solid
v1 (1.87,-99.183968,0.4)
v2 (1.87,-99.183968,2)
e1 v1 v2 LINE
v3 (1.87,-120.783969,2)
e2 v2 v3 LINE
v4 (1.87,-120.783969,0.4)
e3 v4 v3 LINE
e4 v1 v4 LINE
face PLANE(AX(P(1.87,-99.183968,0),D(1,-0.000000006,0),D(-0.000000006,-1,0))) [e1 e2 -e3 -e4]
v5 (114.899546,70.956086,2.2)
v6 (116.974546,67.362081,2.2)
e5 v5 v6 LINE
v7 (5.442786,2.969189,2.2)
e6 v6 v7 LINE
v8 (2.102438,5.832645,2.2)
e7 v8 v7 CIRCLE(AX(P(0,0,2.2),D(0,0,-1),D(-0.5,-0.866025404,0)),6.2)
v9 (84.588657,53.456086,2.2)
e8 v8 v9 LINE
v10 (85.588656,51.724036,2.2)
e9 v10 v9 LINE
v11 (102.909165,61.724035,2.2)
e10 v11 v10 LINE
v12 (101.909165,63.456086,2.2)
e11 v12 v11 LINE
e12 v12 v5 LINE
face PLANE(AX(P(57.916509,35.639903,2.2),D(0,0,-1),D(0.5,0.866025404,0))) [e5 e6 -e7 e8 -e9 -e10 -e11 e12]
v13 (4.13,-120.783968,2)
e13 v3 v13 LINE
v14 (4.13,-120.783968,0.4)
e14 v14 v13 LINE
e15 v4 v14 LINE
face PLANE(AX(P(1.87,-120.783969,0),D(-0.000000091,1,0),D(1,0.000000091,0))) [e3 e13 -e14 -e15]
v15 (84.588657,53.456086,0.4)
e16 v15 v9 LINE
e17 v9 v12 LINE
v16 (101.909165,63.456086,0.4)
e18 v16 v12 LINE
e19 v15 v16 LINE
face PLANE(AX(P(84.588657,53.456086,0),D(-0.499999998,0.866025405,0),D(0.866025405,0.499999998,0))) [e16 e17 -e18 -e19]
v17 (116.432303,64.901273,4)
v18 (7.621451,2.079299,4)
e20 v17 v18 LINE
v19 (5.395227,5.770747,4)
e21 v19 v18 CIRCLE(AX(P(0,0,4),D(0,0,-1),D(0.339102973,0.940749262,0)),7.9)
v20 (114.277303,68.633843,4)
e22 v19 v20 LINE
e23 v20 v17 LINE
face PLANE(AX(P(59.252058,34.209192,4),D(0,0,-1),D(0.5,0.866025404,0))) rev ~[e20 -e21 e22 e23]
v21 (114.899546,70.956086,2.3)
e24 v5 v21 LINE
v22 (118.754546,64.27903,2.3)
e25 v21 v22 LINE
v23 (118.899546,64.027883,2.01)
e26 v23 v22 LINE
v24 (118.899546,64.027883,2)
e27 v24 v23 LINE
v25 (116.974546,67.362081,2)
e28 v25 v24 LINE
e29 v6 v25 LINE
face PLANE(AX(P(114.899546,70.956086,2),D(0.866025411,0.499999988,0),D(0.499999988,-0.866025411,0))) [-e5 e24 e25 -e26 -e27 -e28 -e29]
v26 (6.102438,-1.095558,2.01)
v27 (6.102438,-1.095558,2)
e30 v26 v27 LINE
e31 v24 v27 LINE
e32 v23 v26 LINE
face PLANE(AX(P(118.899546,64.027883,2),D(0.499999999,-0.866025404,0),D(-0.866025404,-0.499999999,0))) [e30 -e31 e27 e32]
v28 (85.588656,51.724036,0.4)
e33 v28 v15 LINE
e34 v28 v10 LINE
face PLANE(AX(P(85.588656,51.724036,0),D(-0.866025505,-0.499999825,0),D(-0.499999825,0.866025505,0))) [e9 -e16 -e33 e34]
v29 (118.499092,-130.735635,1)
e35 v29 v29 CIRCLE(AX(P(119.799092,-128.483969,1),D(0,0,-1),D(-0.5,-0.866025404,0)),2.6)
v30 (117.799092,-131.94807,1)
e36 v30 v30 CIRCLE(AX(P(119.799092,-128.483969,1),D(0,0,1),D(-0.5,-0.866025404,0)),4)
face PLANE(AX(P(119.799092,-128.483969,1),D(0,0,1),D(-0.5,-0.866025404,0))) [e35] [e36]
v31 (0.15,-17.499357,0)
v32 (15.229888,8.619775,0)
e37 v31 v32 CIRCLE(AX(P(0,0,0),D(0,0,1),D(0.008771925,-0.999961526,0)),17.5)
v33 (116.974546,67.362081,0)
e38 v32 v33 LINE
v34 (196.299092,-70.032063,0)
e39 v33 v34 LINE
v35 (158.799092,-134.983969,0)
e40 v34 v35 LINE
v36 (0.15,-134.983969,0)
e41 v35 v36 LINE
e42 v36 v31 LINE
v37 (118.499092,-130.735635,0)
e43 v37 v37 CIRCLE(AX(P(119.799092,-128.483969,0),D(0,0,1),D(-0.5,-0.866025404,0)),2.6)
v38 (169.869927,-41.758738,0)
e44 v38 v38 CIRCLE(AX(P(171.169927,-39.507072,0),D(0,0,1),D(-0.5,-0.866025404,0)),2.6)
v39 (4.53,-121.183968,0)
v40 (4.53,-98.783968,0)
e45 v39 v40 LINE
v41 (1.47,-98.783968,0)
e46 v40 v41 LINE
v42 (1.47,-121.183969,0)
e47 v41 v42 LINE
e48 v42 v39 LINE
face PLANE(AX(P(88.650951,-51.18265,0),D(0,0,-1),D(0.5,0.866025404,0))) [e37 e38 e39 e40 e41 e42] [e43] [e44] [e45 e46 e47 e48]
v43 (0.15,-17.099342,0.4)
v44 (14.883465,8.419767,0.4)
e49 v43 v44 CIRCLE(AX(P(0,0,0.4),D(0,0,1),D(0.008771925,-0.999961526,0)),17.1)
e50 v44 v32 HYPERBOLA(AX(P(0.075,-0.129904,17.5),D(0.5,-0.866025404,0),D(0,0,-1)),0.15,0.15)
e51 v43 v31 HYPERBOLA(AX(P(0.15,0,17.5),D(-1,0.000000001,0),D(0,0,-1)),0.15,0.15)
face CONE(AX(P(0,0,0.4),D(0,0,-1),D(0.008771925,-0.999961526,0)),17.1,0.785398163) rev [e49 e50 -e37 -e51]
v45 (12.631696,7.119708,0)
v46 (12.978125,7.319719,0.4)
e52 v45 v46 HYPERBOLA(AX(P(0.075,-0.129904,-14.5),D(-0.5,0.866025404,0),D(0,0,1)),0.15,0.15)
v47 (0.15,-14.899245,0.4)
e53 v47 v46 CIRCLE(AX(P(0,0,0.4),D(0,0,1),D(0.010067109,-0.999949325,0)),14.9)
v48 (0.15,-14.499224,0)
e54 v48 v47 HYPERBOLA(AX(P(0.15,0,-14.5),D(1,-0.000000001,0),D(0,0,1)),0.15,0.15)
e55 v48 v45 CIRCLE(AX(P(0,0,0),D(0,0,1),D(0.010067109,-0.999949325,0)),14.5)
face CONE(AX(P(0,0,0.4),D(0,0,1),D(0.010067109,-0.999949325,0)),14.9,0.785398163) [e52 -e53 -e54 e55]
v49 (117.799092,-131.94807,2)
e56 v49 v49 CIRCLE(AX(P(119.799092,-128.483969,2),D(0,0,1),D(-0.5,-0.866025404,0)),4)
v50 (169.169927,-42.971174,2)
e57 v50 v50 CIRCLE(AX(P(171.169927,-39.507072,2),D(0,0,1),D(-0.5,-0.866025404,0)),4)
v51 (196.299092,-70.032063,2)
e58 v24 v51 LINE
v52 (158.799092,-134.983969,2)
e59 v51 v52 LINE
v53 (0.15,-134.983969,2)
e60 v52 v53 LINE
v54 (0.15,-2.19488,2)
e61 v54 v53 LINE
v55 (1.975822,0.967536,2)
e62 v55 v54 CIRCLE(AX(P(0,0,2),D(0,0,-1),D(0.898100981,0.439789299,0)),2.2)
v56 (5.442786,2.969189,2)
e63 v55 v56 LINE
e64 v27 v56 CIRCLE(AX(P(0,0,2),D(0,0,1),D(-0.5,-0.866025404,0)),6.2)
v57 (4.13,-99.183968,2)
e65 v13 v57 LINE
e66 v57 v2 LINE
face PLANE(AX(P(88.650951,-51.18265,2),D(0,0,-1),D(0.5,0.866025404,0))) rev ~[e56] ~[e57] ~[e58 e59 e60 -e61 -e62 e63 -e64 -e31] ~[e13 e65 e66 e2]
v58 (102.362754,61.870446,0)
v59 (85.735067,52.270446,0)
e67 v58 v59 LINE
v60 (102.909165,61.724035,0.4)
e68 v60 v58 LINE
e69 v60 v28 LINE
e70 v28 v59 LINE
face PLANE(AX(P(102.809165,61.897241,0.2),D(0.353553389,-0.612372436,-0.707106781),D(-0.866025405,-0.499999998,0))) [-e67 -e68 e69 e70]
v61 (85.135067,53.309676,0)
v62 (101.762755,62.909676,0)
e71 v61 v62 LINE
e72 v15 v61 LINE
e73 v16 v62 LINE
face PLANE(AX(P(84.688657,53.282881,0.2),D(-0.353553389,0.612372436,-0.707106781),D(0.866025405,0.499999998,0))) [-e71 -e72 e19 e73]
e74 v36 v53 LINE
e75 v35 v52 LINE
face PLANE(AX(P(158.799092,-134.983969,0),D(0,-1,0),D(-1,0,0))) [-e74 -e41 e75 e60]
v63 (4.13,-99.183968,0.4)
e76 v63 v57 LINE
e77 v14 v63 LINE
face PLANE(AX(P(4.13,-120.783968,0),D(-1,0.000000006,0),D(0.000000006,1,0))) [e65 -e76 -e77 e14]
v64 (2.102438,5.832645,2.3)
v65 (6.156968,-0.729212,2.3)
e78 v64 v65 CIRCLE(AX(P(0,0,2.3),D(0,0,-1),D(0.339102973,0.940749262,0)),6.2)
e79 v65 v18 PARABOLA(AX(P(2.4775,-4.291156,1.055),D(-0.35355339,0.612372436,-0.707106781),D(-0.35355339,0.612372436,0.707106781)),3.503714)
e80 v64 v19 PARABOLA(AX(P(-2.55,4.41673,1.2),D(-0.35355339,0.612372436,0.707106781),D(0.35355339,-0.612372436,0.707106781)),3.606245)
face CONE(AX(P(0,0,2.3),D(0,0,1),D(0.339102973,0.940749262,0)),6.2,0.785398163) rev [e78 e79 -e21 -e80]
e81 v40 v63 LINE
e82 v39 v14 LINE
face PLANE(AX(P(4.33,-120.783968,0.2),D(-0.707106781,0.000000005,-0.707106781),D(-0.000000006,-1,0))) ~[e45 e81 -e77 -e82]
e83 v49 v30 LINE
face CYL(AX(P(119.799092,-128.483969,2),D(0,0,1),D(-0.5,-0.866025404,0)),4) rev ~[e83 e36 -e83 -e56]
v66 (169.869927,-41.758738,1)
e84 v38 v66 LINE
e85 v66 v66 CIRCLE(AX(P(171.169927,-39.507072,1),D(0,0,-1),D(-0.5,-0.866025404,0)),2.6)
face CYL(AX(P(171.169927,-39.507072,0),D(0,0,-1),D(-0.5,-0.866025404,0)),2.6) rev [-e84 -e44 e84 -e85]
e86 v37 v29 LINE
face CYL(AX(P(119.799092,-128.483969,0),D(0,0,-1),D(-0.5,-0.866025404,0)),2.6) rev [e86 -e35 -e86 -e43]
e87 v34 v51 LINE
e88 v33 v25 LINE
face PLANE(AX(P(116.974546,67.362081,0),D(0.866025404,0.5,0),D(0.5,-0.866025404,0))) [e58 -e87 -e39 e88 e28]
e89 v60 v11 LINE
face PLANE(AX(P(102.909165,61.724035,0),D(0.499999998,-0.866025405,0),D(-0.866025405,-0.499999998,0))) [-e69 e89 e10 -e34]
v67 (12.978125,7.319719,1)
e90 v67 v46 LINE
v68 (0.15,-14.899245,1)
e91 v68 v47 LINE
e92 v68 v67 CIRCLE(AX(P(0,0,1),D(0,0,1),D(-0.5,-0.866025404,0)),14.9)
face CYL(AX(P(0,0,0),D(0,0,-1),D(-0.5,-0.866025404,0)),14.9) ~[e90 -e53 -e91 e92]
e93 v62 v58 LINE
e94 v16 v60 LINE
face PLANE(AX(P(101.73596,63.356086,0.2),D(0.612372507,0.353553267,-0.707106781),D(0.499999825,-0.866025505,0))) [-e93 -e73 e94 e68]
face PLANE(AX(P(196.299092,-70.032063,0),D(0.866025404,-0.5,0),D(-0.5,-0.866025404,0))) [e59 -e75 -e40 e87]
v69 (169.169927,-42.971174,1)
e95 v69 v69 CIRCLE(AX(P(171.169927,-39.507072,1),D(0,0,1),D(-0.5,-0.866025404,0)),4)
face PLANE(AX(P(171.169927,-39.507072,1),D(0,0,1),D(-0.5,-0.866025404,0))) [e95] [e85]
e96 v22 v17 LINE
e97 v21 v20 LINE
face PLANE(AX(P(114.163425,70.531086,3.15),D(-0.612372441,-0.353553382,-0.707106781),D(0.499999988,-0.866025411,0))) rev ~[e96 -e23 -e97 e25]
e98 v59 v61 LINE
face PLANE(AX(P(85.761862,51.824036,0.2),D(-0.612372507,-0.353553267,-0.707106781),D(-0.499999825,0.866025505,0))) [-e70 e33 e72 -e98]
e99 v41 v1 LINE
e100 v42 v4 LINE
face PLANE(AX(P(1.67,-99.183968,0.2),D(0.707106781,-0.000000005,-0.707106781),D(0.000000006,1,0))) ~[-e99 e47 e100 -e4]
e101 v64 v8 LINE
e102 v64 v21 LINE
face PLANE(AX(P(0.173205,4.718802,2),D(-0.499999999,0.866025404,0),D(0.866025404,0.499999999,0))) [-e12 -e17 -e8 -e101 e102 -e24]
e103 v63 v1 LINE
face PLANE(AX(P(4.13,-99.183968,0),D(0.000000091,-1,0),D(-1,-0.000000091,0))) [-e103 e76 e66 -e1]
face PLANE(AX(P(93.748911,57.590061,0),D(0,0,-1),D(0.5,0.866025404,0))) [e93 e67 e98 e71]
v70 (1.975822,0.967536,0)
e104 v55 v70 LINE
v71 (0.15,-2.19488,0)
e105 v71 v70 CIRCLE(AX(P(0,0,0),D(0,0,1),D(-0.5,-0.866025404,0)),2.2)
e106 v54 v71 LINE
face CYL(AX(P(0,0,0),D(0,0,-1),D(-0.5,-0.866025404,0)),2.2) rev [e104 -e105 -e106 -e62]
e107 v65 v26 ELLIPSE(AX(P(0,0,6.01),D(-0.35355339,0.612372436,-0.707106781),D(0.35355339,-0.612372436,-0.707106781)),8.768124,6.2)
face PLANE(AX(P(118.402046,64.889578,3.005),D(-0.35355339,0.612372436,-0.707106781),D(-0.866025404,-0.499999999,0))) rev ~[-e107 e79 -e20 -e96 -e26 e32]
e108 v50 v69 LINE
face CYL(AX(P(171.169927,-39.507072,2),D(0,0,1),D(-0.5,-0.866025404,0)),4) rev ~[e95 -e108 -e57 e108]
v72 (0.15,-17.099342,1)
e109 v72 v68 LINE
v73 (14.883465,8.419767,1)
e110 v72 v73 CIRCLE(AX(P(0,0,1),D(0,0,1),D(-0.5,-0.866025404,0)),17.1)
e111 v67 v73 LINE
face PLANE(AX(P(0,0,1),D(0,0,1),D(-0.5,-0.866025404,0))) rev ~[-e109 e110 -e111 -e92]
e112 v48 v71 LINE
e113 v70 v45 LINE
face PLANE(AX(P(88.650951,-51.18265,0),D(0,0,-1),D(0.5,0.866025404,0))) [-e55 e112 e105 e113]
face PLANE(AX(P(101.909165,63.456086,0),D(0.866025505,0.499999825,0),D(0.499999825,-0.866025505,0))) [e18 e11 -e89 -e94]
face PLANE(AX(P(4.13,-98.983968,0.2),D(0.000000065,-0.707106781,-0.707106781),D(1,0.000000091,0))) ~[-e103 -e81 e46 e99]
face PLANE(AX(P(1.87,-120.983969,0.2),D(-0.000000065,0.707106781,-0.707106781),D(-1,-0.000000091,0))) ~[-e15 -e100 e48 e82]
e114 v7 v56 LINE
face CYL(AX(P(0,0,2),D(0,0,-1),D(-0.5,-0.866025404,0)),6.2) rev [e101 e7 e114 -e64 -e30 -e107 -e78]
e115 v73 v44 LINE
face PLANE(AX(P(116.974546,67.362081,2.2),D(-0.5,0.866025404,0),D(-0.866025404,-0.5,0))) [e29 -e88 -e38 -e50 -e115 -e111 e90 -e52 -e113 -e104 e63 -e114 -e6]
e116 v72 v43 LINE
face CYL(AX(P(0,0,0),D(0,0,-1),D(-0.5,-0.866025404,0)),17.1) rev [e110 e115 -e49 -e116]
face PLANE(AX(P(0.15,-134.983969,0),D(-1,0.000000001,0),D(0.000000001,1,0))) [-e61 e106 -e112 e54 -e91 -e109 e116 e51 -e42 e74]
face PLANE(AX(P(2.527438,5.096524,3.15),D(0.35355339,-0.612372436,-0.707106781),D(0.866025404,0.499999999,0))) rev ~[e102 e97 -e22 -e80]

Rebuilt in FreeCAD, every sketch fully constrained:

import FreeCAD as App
import Part
import Sketcher

V = App.Vector
Q = App.Units.Quantity


def edges_at(feature, points):
    """Names of the edges that pass closest to the given points."""
    edges = feature.Shape.Edges
    near = lambda p: min(range(len(edges)), key=lambda i: edges[i].distToShape(Part.Vertex(*p))[0])
    return sorted({f"Edge{near(p) + 1}" for p in points})

doc = App.newDocument("Part")
body = doc.addObject("PartDesign::Body", "Body")

# Sketch on XY plane
sketch1 = body.newObject("Sketcher::SketchObject", "Sketch")
sketch1.AttachmentSupport = (doc.getObject("XY_Plane"), [""])
sketch1.MapMode = "FlatFace"
sketch1.addGeometry(Part.LineSegment(V(-37.5, 205, 0), V(-116.8, 67.6, 0)), False)
sketch1.addGeometry(Part.LineSegment(V(-116.8, 67.6, 0), V(0, 0.2, 0)), False)
sketch1.addGeometry(Part.LineSegment(V(0, 0.2, 0), V(116.8, 67.6, 0)), False)
sketch1.addGeometry(Part.LineSegment(V(116.8, 67.6, 0), V(37.5, 205, 0)), False)
sketch1.addGeometry(Part.LineSegment(V(37.5, 205, 0), V(-37.5, 205, 0)), False)
sketch1.addGeometry(Part.Circle(V(51.4, 168, 0), V(0, 0, 1), 2.6), False)
sketch1.addGeometry(Part.Circle(V(-51.4, 168, 0), V(0, 0, 1), 2.6), False)
sketch1.addConstraint(Sketcher.Constraint("Coincident", 0, 2, 1, 1))
sketch1.addConstraint(Sketcher.Constraint("Coincident", 1, 2, 2, 1))
sketch1.addConstraint(Sketcher.Constraint("Coincident", 2, 2, 3, 1))
sketch1.addConstraint(Sketcher.Constraint("Coincident", 3, 2, 4, 1))
sketch1.addConstraint(Sketcher.Constraint("Coincident", 4, 2, 0, 1))
sketch1.addConstraint(Sketcher.Constraint("Horizontal", 4))
sketch1.addConstraint(Sketcher.Constraint("Equal", 5, 6))
sketch1.addConstraint(Sketcher.Constraint("Symmetric", 5, 3, 6, 3, -2))
sketch1.addConstraint(Sketcher.Constraint("Symmetric", 0, 2, 2, 2, -2))
sketch1.addConstraint(Sketcher.Constraint("PointOnObject", 1, 2, -2))
sketch1.addConstraint(Sketcher.Constraint("Perpendicular", 0, 1))
sketch1.addConstraint(Sketcher.Constraint("Perpendicular", 2, 3))
sketch1.addConstraint(Sketcher.Constraint("Diameter", 5, 5.2))
sketch1.addConstraint(Sketcher.Constraint("DistanceX", 4, 2, 4, 1, 75.0))
sketch1.addConstraint(Sketcher.Constraint("Angle", 0, Q("-120 deg")))
sketch1.addConstraint(Sketcher.Constraint("DistanceY", -1, 1, 5, 3, 167.991041))
sketch1.addConstraint(Sketcher.Constraint("DistanceY", -1, 1, 0, 2, 67.621888))
sketch1.addConstraint(Sketcher.Constraint("DistanceY", -1, 1, 3, 2, 205.016032))
sketch1.addConstraint(Sketcher.Constraint("DistanceX", 6, 3, 5, 3, 102.74167))
pad1 = body.newObject("PartDesign::Pad", "Pad")
pad1.Profile = sketch1
pad1.Length = 2

# Sketch on XY plane
sketch2 = body.newObject("Sketcher::SketchObject", "Sketch001")
sketch2.AttachmentSupport = (doc.getObject("XY_Plane"), [""])
sketch2.MapMode = "FlatFace"
sketch2.AttachmentOffset = App.Placement(V(0, 0, 2), App.Rotation())
sketch2.addGeometry(Part.LineSegment(V(-114.9, 71, 0), V(-118.9, 64, 0)), False)
sketch2.addGeometry(Part.LineSegment(V(-118.9, 64, 0), V(-4.2, -2.2, 0)), False)
sketch2.addGeometry(Part.LineSegment(V(-4.2, -2.2, 0), V(-0.2, 0.1, 0)), False)
sketch2.addGeometry(Part.LineSegment(V(-0.2, 0.1, 0), V(-0.2, 4.7, 0)), False)
sketch2.addGeometry(Part.LineSegment(V(-0.2, 4.7, 0), V(-114.9, 71, 0)), False)
sketch2.addConstraint(Sketcher.Constraint("Coincident", 0, 2, 1, 1))
sketch2.addConstraint(Sketcher.Constraint("Coincident", 1, 2, 2, 1))
sketch2.addConstraint(Sketcher.Constraint("Coincident", 2, 2, 3, 1))
sketch2.addConstraint(Sketcher.Constraint("Coincident", 3, 2, 4, 1))
sketch2.addConstraint(Sketcher.Constraint("Coincident", 4, 2, 0, 1))
sketch2.addConstraint(Sketcher.Constraint("Vertical", 3))
sketch2.addConstraint(Sketcher.Constraint("Perpendicular", 0, 1))
sketch2.addConstraint(Sketcher.Constraint("Parallel", 1, 4))
sketch2.addConstraint(Sketcher.Constraint("Equal", 1, 4))
sketch2.addConstraint(Sketcher.Constraint("Angle", 0, Q("-120.000001 deg")))
sketch2.addConstraint(Sketcher.Constraint("Angle", 2, Q("29.999999 deg")))
sketch2.addConstraint(Sketcher.Constraint("Distance", 0, 8.0))
sketch2.addConstraint(Sketcher.Constraint("DistanceY", -1, 1, 2, 2, 0.1))
sketch2.addConstraint(Sketcher.Constraint("DistanceX", 0, 2, 1, 2, 114.726341))
sketch2.addConstraint(Sketcher.Constraint("DistanceX", 0, 2, -1, 1, 118.899546))
pad2 = body.newObject("PartDesign::Pad", "Pad001")
pad2.Profile = sketch2
pad2.Length = 2

# Sketch on XY plane
sketch3 = body.newObject("Sketcher::SketchObject", "Sketch002")
sketch3.AttachmentSupport = (doc.getObject("XY_Plane"), [""])
sketch3.MapMode = "FlatFace"
sketch3.AttachmentOffset = App.Placement(V(0, 0, 2.2), App.Rotation())
sketch3.addGeometry(Part.LineSegment(V(0, 0.2, 0), V(-116.8, 67.6, 0)), False)
sketch3.addGeometry(Part.LineSegment(V(-116.8, 67.6, 0), V(-118.9, 64, 0)), False)
sketch3.addGeometry(Part.LineSegment(V(-118.9, 64, 0), V(-4.2, -2.2, 0)), False)
sketch3.addGeometry(Part.LineSegment(V(-4.2, -2.2, 0), V(0, 0.2, 0)), False)
sketch3.addConstraint(Sketcher.Constraint("Coincident", 0, 2, 1, 1))
sketch3.addConstraint(Sketcher.Constraint("Coincident", 1, 2, 2, 1))
sketch3.addConstraint(Sketcher.Constraint("Coincident", 2, 2, 3, 1))
sketch3.addConstraint(Sketcher.Constraint("Coincident", 3, 2, 0, 1))
sketch3.addConstraint(Sketcher.Constraint("PointOnObject", 3, 2, -2))
sketch3.addConstraint(Sketcher.Constraint("Perpendicular", 0, 1))
sketch3.addConstraint(Sketcher.Constraint("Perpendicular", 1, 2))
sketch3.addConstraint(Sketcher.Constraint("Angle", 0, Q("150 deg")))
sketch3.addConstraint(Sketcher.Constraint("Distance", 1, 4.15))
sketch3.addConstraint(Sketcher.Constraint("DistanceY", 2, 2, -1, 1, 2.209401))
sketch3.addConstraint(Sketcher.Constraint("Distance", 3, 4.805461))
sketch3.addConstraint(Sketcher.Constraint("DistanceY", -1, 1, 0, 2, 67.621888))
pocket1 = body.newObject("PartDesign::Pocket", "Pocket")
pocket1.Profile = sketch3
pocket1.Type = "ThroughAll"

# Sketch on XY plane
sketch4 = body.newObject("Sketcher::SketchObject", "Sketch003")
sketch4.AttachmentSupport = (doc.getObject("XY_Plane"), [""])
sketch4.MapMode = "FlatFace"
sketch4.addGeometry(Part.LineSegment(V(-87.6, 48.3, 0), V(-104.9, 58.3, 0)), False)
sketch4.addGeometry(Part.LineSegment(V(-104.9, 58.3, 0), V(-105.9, 56.5, 0)), False)
sketch4.addGeometry(Part.LineSegment(V(-105.9, 56.5, 0), V(-88.6, 46.5, 0)), False)
sketch4.addGeometry(Part.LineSegment(V(-88.6, 46.5, 0), V(-87.6, 48.3, 0)), False)
sketch4.addConstraint(Sketcher.Constraint("Coincident", 0, 2, 1, 1))
sketch4.addConstraint(Sketcher.Constraint("Coincident", 1, 2, 2, 1))
sketch4.addConstraint(Sketcher.Constraint("Coincident", 2, 2, 3, 1))
sketch4.addConstraint(Sketcher.Constraint("Coincident", 3, 2, 0, 1))
sketch4.addConstraint(Sketcher.Constraint("Perpendicular", 0, 1))
sketch4.addConstraint(Sketcher.Constraint("Perpendicular", 1, 2))
sketch4.addConstraint(Sketcher.Constraint("Perpendicular", 2, 3))
sketch4.addConstraint(Sketcher.Constraint("Angle", 0, Q("150 deg")))
sketch4.addConstraint(Sketcher.Constraint("Distance", 0, 20.0))
sketch4.addConstraint(Sketcher.Constraint("Distance", 1, 1.999999))
sketch4.addConstraint(Sketcher.Constraint("DistanceX", 0, 2, -1, 1, 104.909165))
sketch4.addConstraint(Sketcher.Constraint("DistanceY", -1, 1, 0, 2, 58.259933))
pad3 = body.newObject("PartDesign::Pad", "Pad002")
pad3.Profile = sketch4
pad3.Length = 2.2

# Sketch on XY plane
sketch5 = body.newObject("Sketcher::SketchObject", "Sketch004")
sketch5.AttachmentSupport = (doc.getObject("XY_Plane"), [""])
sketch5.MapMode = "FlatFace"
sketch5.addGeometry(Part.LineSegment(V(83.8, 53.2, 0), V(85, 51.2, 0)), False)
sketch5.addGeometry(Part.LineSegment(V(85, 51.2, 0), V(103.7, 62, 0)), False)
sketch5.addGeometry(Part.LineSegment(V(103.7, 62, 0), V(102.5, 64, 0)), False)
sketch5.addGeometry(Part.LineSegment(V(102.5, 64, 0), V(83.8, 53.2, 0)), False)
sketch5.addConstraint(Sketcher.Constraint("Coincident", 0, 2, 1, 1))
sketch5.addConstraint(Sketcher.Constraint("Coincident", 1, 2, 2, 1))
sketch5.addConstraint(Sketcher.Constraint("Coincident", 2, 2, 3, 1))
sketch5.addConstraint(Sketcher.Constraint("Coincident", 3, 2, 0, 1))
sketch5.addConstraint(Sketcher.Constraint("Perpendicular", 0, 1))
sketch5.addConstraint(Sketcher.Constraint("Perpendicular", 1, 2))
sketch5.addConstraint(Sketcher.Constraint("Perpendicular", 2, 3))
sketch5.addConstraint(Sketcher.Constraint("Angle", 0, Q("-59.999995 deg")))
sketch5.addConstraint(Sketcher.Constraint("Distance", 1, 21.6))
sketch5.addConstraint(Sketcher.Constraint("Distance", 0, 2.26))
sketch5.addConstraint(Sketcher.Constraint("DistanceY", -1, 1, 1, 2, 62.011452))
sketch5.addConstraint(Sketcher.Constraint("DistanceX", -1, 1, 0, 2, 84.960836))
pocket2 = body.newObject("PartDesign::Pocket", "Pocket001")
pocket2.Profile = sketch5
pocket2.Type = "ThroughAll"
pocket2.Reversed = True

# Sketch on XY plane
sketch6 = body.newObject("Sketcher::SketchObject", "Sketch005")
sketch6.AttachmentSupport = (doc.getObject("XY_Plane"), [""])
sketch6.MapMode = "FlatFace"
sketch6.addGeometry(Part.Circle(V(0, 0, 0), V(0, 0, 1), 17), False)
sketch6.addGeometry(Part.Circle(V(0, 0, 0), V(0, 0, 1), 15), False)
sketch6.addConstraint(Sketcher.Constraint("Coincident", 0, 3, -1, 1))
sketch6.addConstraint(Sketcher.Constraint("Coincident", 1, 3, -1, 1))
sketch6.addConstraint(Sketcher.Constraint("Diameter", 0, 34.2))
sketch6.addConstraint(Sketcher.Constraint("Diameter", 1, 29.8))
pocket3 = body.newObject("PartDesign::Pocket", "Pocket002")
pocket3.Profile = sketch6
pocket3.Length = 1
pocket3.Reversed = True
doc.recompute()

chamfer = body.newObject("PartDesign::Chamfer", "Chamfer")
chamfer.Base = (pocket3, edges_at(pocket3, [
    (-96.249, 53.26, 0),
    (-88.089, 47.394, 0),
    (-97.249, 51.528, 0),
    (-105.409, 57.394, 0),
    (94.314, 56.611, 0),
    (103.102, 62.99, 0),
    (93.184, 58.569, 0),
    (84.396, 52.19, 0),
    (0, 14.9, 0),
    (0, 17.1, 0),
]))
chamfer.Size = 0.4
doc.recompute()

chamfer2 = body.newObject("PartDesign::Chamfer", "Chamfer001")
chamfer2.Base = (chamfer, edges_at(chamfer, [(-57.536, 37.837, 4)]))
chamfer2.Size = 1.99

# Sketch on XY plane
sketch7 = body.newObject("Sketcher::SketchObject", "Sketch006")
sketch7.AttachmentSupport = (doc.getObject("XY_Plane"), [""])
sketch7.MapMode = "FlatFace"
sketch7.addGeometry(Part.Circle(V(0, 0, 0), V(0, 0, 1), 2.2), False)
sketch7.addConstraint(Sketcher.Constraint("Coincident", 0, 3, -1, 1))
sketch7.addConstraint(Sketcher.Constraint("Diameter", 0, 4.4))
pocket4 = body.newObject("PartDesign::Pocket", "Pocket003")
pocket4.Profile = sketch7
pocket4.Type = "ThroughAll"
pocket4.Reversed = True

# Sketch on XY plane
sketch8 = body.newObject("Sketcher::SketchObject", "Sketch007")
sketch8.AttachmentSupport = (doc.getObject("XY_Plane"), [""])
sketch8.MapMode = "FlatFace"
sketch8.AttachmentOffset = App.Placement(V(0, 0, 2), App.Rotation())
sketch8.addGeometry(Part.Circle(V(0, 0, 0), V(0, 0, 1), 6), False)
sketch8.addConstraint(Sketcher.Constraint("Coincident", 0, 3, -1, 1))
sketch8.addConstraint(Sketcher.Constraint("Diameter", 0, 12.4))
pocket5 = body.newObject("PartDesign::Pocket", "Pocket004")
pocket5.Profile = sketch8
pocket5.Type = "ThroughAll"
pocket5.Reversed = True

# Sketch on XY plane
sketch9 = body.newObject("Sketcher::SketchObject", "Sketch008")
sketch9.AttachmentSupport = (doc.getObject("XY_Plane"), [""])
sketch9.MapMode = "FlatFace"
sketch9.AttachmentOffset = App.Placement(V(0, 0, 2), App.Rotation())
sketch9.addGeometry(Part.Circle(V(-51.4, 168, 0), V(0, 0, 1), 4), False)
sketch9.addGeometry(Part.Circle(V(51.4, 168, 0), V(0, 0, 1), 4), False)
sketch9.addConstraint(Sketcher.Constraint("Equal", 0, 1))
sketch9.addConstraint(Sketcher.Constraint("Symmetric", 0, 3, 1, 3, -2))
sketch9.addConstraint(Sketcher.Constraint("Diameter", 0, 8.0))
sketch9.addConstraint(Sketcher.Constraint("DistanceY", -1, 1, 0, 3, 167.991041))
sketch9.addConstraint(Sketcher.Constraint("DistanceX", 0, 3, 1, 3, 102.74167))
pocket6 = body.newObject("PartDesign::Pocket", "Pocket005")
pocket6.Profile = sketch9
pocket6.Length = 1
doc.recompute()

chamfer3 = body.newObject("PartDesign::Chamfer", "Chamfer002")
chamfer3.Base = (pocket6, edges_at(pocket6, [(-5.849, 2.056, 4), (-62.501, 31.466, 4), (-117.397, 66.63, 4)]))
chamfer3.Size = 1.7
body2 = doc.addObject("PartDesign::Body", "Body001")
doc.recompute()

body.Placement = App.Placement(V(0, 0, 0), App.Rotation(V(0, 0, 1), 240))
boolean = body2.newObject("PartDesign::Boolean", "Boolean")
boolean.Type = "Fuse"
boolean.addObjects([body])

doc.recompute()
